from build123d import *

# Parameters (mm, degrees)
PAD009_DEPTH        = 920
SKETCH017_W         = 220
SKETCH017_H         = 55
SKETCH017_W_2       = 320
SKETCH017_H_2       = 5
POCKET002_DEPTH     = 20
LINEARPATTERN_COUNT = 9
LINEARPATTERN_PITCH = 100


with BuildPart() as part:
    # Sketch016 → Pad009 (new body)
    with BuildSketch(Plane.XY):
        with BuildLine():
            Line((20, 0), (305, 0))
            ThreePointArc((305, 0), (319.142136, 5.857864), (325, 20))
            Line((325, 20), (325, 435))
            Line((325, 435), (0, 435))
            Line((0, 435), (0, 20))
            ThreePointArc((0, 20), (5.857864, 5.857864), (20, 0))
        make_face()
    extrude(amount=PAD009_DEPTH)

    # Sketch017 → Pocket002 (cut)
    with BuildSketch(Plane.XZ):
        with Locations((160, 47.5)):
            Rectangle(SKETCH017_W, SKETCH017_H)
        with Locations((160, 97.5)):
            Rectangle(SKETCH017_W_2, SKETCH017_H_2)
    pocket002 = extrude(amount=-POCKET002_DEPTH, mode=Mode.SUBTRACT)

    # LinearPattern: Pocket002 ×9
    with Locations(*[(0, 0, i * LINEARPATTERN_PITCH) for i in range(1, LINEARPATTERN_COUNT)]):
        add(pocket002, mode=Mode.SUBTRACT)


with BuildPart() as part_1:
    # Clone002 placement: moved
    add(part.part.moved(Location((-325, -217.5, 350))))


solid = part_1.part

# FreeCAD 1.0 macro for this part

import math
import FreeCAD as App
import Part
import Sketcher

V = App.Vector


def add_polygon(sketch, points):
    """Adds a closed chain of lines whose ends are joined by coincident constraints."""
    first, n = sketch.GeometryCount, len(points)
    for a, b in zip(points, points[1:] + points[:1]):
        sketch.addGeometry(Part.LineSegment(App.Vector(*a, 0), App.Vector(*b, 0)), False)
    for i in range(n):
        sketch.addConstraint(Sketcher.Constraint("Coincident", first + i, 2, first + (i + 1) % n, 1))

doc = App.newDocument("Part")
body = doc.addObject("PartDesign::Body", "Body")

sketch1 = doc.addObject("Sketcher::SketchObject", "Sketch")
body.addObject(sketch1)
sketch1.AttachmentSupport = (doc.XY_Plane, [""])
sketch1.MapMode = "FlatFace"
sketch1.addGeometry(Part.LineSegment(V(20, 0, 0), V(305, 0, 0)), False)
sketch1.addGeometry(Part.ArcOfCircle(Part.Circle(V(305.000001, 19.999999, 0), V(0, 0, 1), 19.999999), math.radians(-90.000004), math.radians(0.000004)), False)
sketch1.addGeometry(Part.LineSegment(V(325, 20, 0), V(325, 435, 0)), False)
sketch1.addGeometry(Part.LineSegment(V(325, 435, 0), V(0, 435, 0)), False)
sketch1.addGeometry(Part.LineSegment(V(0, 435, 0), V(0, 20, 0)), False)
sketch1.addGeometry(Part.ArcOfCircle(Part.Circle(V(19.999999, 19.999999, 0), V(0, 0, 1), 19.999999), math.radians(179.999996), math.radians(270.000004)), False)
sketch1.addConstraint(Sketcher.Constraint("Tangent", 0, 2, 1, 1))
sketch1.addConstraint(Sketcher.Constraint("Tangent", 1, 2, 2, 1))
sketch1.addConstraint(Sketcher.Constraint("Coincident", 2, 2, 3, 1))
sketch1.addConstraint(Sketcher.Constraint("Coincident", 3, 2, 4, 1))
sketch1.addConstraint(Sketcher.Constraint("Tangent", 4, 2, 5, 1))
sketch1.addConstraint(Sketcher.Constraint("Tangent", 5, 2, 0, 1))
sketch1.addConstraint(Sketcher.Constraint("Horizontal", 0))
sketch1.addConstraint(Sketcher.Constraint("Vertical", 2))
sketch1.addConstraint(Sketcher.Constraint("Horizontal", 3))
sketch1.addConstraint(Sketcher.Constraint("Vertical", 4))
sketch1.addConstraint(Sketcher.Constraint("Equal", 1, 5))
sketch1.addConstraint(Sketcher.Constraint("PointOnObject", 0, 2, -1))
sketch1.addConstraint(Sketcher.Constraint("PointOnObject", 3, 2, -2))
sketch1.addConstraint(Sketcher.Constraint("Radius", 1, 19.999999))
sketch1.addConstraint(Sketcher.Constraint("DistanceX", 0, 1, 0, 2, 285.0))
sketch1.addConstraint(Sketcher.Constraint("DistanceY", 2, 1, 2, 2, 415.0))
pad1 = doc.addObject("PartDesign::Pad", "Pad")
body.addObject(pad1)
pad1.Profile = sketch1
pad1.Length = 920

sketch2 = doc.addObject("Sketcher::SketchObject", "Sketch001")
body.addObject(sketch2)
sketch2.AttachmentSupport = (doc.XZ_Plane, [""])
sketch2.MapMode = "FlatFace"
add_polygon(sketch2, [(50, 75), (50, 20), (270, 20), (270, 75)])
add_polygon(sketch2, [(0, 100), (0, 95), (320, 95), (320, 100)])
sketch2.addConstraint(Sketcher.Constraint("Vertical", 0))
sketch2.addConstraint(Sketcher.Constraint("Horizontal", 1))
sketch2.addConstraint(Sketcher.Constraint("Vertical", 2))
sketch2.addConstraint(Sketcher.Constraint("Horizontal", 3))
sketch2.addConstraint(Sketcher.Constraint("Vertical", 4))
sketch2.addConstraint(Sketcher.Constraint("Horizontal", 5))
sketch2.addConstraint(Sketcher.Constraint("Vertical", 6))
sketch2.addConstraint(Sketcher.Constraint("Horizontal", 7))
sketch2.addConstraint(Sketcher.Constraint("PointOnObject", 4, 2, -2))
sketch2.addConstraint(Sketcher.Constraint("DistanceX", 1, 1, 1, 2, 220.0))
sketch2.addConstraint(Sketcher.Constraint("DistanceX", 5, 1, 5, 2, 320.0))
sketch2.addConstraint(Sketcher.Constraint("DistanceY", 0, 2, 0, 1, 55.0))
sketch2.addConstraint(Sketcher.Constraint("DistanceY", 4, 2, 4, 1, 5.0))
sketch2.addConstraint(Sketcher.Constraint("DistanceX", -1, 1, 0, 2, 50.0))
sketch2.addConstraint(Sketcher.Constraint("DistanceY", -1, 1, 0, 2, 20.0))
sketch2.addConstraint(Sketcher.Constraint("DistanceY", -1, 1, 4, 2, 95.0))
pocket1 = doc.addObject("PartDesign::Pocket", "Pocket")
body.addObject(pocket1)
pocket1.Profile = sketch2
pocket1.Length = 20
doc.recompute()

linearpattern = doc.addObject("PartDesign::LinearPattern", "LinearPattern")
body.addObject(linearpattern)
linearpattern.Originals = [pocket1]
linearpattern.Direction = (doc.Z_Axis, [""])
linearpattern.Mode = "offset"
linearpattern.Offset = 100
linearpattern.Occurrences = 9
body.Tip = linearpattern
body2 = doc.addObject("PartDesign::Body", "Body001")
doc.recompute()

body.Placement = App.Placement(V(-325, -217.5, 350), App.Rotation(V(0, 0, 1), 0))
boolean = doc.addObject("PartDesign::Boolean", "Boolean")
body2.addObject(boolean)
boolean.Type = "Fuse"
boolean.addObjects([body])

doc.recompute()
